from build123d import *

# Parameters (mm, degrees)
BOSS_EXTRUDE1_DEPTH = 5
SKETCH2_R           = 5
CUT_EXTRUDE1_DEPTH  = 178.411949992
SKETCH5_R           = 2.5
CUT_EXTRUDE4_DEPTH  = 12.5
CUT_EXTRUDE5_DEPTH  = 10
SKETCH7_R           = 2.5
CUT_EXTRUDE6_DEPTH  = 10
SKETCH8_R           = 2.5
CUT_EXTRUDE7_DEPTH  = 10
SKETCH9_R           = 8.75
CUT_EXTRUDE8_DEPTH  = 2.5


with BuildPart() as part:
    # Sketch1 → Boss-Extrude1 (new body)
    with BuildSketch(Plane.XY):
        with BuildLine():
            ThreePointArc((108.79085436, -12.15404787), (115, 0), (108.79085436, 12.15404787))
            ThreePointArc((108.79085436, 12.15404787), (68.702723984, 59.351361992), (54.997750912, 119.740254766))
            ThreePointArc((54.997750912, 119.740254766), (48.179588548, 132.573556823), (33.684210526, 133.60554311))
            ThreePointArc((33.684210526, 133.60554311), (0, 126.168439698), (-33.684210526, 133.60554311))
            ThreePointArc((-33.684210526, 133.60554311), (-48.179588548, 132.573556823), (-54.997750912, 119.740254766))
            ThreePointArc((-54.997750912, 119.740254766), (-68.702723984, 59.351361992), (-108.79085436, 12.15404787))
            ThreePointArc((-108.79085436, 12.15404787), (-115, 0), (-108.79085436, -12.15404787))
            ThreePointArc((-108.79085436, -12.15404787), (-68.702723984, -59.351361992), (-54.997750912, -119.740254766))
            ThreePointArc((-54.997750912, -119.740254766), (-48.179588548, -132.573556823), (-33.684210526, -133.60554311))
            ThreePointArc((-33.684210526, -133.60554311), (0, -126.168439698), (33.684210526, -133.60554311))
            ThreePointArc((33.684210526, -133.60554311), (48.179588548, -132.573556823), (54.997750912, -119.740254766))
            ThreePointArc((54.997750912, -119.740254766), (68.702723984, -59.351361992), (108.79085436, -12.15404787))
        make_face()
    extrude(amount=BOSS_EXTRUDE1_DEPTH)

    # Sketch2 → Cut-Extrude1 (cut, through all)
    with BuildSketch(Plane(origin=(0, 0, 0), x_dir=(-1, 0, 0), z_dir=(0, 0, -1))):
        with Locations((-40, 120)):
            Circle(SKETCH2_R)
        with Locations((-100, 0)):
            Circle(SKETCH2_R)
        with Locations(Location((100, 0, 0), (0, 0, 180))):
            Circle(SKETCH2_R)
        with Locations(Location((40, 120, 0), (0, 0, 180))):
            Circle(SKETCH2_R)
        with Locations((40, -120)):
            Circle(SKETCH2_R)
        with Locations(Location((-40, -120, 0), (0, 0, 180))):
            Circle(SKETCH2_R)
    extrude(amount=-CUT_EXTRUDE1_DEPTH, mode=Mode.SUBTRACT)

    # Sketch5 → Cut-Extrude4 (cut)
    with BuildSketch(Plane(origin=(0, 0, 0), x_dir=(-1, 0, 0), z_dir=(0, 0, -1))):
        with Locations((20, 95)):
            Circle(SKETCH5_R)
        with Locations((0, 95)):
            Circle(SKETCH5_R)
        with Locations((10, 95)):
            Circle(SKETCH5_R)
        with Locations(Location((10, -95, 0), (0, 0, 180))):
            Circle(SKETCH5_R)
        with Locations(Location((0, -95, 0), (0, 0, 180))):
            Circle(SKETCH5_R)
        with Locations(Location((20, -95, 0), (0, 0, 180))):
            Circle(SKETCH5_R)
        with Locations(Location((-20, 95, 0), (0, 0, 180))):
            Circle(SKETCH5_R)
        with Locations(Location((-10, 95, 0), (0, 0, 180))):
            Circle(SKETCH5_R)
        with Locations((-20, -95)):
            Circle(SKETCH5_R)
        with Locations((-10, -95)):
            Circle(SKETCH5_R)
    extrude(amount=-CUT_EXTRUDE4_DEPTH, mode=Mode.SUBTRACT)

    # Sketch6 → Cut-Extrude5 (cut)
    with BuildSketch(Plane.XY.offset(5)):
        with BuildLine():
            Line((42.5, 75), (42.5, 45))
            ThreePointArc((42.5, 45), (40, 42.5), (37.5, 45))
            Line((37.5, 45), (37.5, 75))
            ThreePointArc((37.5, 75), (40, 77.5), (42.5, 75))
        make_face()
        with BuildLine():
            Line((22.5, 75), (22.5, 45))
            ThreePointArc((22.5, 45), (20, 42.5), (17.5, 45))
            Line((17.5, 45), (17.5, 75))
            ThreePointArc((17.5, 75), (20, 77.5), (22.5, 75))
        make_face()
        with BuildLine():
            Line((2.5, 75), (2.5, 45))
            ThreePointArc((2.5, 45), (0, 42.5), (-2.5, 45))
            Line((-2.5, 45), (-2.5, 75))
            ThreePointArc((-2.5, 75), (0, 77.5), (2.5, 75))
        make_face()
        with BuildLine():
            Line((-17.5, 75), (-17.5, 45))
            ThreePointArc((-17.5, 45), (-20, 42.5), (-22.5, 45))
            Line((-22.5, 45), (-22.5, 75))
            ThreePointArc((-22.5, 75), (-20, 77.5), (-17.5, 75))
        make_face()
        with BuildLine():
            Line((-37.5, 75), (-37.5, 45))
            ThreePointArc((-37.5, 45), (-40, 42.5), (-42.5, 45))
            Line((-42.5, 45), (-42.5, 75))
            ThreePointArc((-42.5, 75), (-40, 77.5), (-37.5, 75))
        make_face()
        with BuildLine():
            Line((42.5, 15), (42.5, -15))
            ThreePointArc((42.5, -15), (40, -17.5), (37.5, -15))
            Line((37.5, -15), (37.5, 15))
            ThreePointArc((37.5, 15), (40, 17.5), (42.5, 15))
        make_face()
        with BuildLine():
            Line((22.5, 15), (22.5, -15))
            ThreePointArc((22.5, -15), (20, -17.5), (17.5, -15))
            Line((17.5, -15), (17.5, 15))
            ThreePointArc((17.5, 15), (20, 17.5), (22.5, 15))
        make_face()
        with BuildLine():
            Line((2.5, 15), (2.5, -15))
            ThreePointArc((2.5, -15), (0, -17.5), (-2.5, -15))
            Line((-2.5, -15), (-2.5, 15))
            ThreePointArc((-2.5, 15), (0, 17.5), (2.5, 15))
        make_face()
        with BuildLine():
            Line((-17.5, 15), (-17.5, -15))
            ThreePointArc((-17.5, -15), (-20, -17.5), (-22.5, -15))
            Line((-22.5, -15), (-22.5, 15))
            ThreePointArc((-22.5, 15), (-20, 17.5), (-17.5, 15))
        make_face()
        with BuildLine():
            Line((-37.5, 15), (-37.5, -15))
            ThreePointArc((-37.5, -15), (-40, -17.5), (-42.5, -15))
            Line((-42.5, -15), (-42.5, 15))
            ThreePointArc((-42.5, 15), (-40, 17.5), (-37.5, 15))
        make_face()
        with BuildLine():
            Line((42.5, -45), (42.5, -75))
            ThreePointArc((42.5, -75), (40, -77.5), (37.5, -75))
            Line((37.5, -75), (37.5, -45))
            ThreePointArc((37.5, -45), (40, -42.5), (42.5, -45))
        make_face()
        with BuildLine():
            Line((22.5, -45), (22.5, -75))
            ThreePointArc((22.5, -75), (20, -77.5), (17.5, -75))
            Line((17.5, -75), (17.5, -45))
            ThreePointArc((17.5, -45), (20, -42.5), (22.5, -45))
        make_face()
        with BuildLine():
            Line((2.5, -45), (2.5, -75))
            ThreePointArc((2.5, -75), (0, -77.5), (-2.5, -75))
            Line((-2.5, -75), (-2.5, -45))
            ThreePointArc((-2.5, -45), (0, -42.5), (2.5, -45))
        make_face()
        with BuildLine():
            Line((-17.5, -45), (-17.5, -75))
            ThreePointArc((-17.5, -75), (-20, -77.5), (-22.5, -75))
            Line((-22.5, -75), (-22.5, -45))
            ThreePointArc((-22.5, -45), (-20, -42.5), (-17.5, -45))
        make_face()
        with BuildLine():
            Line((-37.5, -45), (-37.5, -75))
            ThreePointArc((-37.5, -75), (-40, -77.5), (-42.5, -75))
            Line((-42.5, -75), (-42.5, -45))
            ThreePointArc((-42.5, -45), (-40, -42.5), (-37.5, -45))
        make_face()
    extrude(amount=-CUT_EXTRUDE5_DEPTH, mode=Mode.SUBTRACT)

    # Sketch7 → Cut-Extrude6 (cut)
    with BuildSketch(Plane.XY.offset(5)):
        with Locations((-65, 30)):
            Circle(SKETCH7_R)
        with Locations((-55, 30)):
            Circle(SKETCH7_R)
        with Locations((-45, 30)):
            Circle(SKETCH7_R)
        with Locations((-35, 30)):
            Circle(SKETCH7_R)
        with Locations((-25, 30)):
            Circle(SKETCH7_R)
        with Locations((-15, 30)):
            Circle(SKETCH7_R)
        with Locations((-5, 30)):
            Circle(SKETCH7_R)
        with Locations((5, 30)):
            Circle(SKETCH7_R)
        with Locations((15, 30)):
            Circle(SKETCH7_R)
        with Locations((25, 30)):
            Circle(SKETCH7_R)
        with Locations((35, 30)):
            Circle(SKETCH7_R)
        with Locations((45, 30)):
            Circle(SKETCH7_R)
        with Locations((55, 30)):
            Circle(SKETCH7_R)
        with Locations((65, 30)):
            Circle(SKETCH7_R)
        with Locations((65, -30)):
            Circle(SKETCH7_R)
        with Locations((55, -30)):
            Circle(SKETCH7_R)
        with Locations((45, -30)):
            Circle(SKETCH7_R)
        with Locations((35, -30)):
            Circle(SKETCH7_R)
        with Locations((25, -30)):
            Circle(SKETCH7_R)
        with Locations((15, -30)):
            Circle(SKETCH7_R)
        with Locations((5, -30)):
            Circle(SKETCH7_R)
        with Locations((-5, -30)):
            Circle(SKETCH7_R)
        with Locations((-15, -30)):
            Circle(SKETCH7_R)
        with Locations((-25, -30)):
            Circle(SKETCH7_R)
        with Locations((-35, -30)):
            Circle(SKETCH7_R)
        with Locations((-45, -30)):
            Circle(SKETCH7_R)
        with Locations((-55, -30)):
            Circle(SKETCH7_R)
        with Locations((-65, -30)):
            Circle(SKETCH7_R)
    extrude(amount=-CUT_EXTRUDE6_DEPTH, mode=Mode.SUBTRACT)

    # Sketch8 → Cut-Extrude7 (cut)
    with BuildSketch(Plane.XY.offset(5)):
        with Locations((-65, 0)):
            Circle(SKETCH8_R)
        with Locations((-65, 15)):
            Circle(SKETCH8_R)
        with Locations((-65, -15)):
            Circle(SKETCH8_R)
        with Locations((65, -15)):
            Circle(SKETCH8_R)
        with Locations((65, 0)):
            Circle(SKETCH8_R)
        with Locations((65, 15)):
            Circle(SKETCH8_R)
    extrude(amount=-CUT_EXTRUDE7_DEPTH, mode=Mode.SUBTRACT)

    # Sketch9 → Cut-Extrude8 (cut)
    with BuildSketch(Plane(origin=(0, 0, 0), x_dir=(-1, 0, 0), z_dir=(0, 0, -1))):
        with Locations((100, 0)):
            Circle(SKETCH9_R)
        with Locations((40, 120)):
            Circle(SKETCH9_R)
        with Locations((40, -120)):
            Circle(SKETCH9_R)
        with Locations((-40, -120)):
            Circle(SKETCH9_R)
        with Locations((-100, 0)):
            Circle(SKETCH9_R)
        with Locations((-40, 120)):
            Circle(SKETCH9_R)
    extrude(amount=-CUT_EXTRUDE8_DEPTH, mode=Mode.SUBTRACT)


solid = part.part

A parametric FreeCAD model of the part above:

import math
import FreeCAD as App
import Part
import Sketcher

doc = App.newDocument("Part")
params = doc.addObject("Spreadsheet::Sheet", "Params")
for row, (alias, value) in enumerate([
    ("sketch1_radius", "15 mm"),
    ("sketch1_radius2", "130 mm"),
    ("sketch1_radius3", "80 mm"),
    ("pad1_length", "5 mm"),
    ("sketch2_diameter", "10 mm"),
    ("sketch3_diameter", "5 mm"),
    ("pocket2_length", "12.5 mm"),
    ("sketch4_radius", "2.5 mm"),
    ("sketch4_height", "30 mm"),
    ("pocket3_length", "10 mm"),
    ("sketch5_diameter", "5 mm"),
    ("pocket4_length", "10 mm"),
    ("sketch6_diameter", "5 mm"),
    ("pocket5_length", "10 mm"),
    ("sketch7_diameter", "17.5 mm"),
    ("pocket6_length", "2.5 mm"),
], start=1):
    params.set(f"A{row}", alias)
    params.set(f"B{row}", "=" + value)
    params.setAlias(f"B{row}", alias)

body = doc.addObject("PartDesign::Body", "Body")

sketch1 = doc.addObject("Sketcher::SketchObject", "Sketch")
body.addObject(sketch1)
sketch1.AttachmentSupport = (doc.XY_Plane, [""])
sketch1.MapMode = "FlatFace"
sketch1.addGeometry([
    Part.ArcOfCircle(Part.Circle(App.Vector(100, 0, 0), App.Vector(0, 0, 1), 15), math.radians(-54), math.radians(54)),
    Part.ArcOfCircle(Part.Circle(App.Vector(185, 117, 0), App.Vector(0, 0, 1), 130), math.radians(179), math.radians(234)),
    Part.ArcOfCircle(Part.Circle(App.Vector(40, 120, 0), App.Vector(0, 0, 1), 15), math.radians(-1), math.radians(115)),
    Part.ArcOfCircle(Part.Circle(App.Vector(0, 206, 0), App.Vector(0, 0, 1), 80), math.radians(-115), math.radians(-65)),
    Part.ArcOfCircle(Part.Circle(App.Vector(-40, 120, 0), App.Vector(0, 0, 1), 15), math.radians(65), math.radians(181)),
    Part.ArcOfCircle(Part.Circle(App.Vector(-185, 117, 0), App.Vector(0, 0, 1), 130), math.radians(-54), math.radians(1)),
    Part.ArcOfCircle(Part.Circle(App.Vector(-100, 0, 0), App.Vector(0, 0, 1), 15), math.radians(126), math.radians(234)),
    Part.ArcOfCircle(Part.Circle(App.Vector(-185, -117, 0), App.Vector(0, 0, 1), 130), math.radians(-1), math.radians(54)),
    Part.ArcOfCircle(Part.Circle(App.Vector(-40, -120, 0), App.Vector(0, 0, 1), 15), math.radians(179), math.radians(295)),
    Part.ArcOfCircle(Part.Circle(App.Vector(0, -206, 0), App.Vector(0, 0, 1), 80), math.radians(65), math.radians(115)),
    Part.ArcOfCircle(Part.Circle(App.Vector(40, -120, 0), App.Vector(0, 0, 1), 15), math.radians(-115), math.radians(1)),
    Part.ArcOfCircle(Part.Circle(App.Vector(185, -117, 0), App.Vector(0, 0, 1), 130), math.radians(126), math.radians(181)),
], False)
sketch1.addConstraint([
    Sketcher.Constraint("Tangent", 0, 2, 1, 2),
    Sketcher.Constraint("Tangent", 1, 1, 2, 1),
    Sketcher.Constraint("Tangent", 2, 2, 3, 2),
    Sketcher.Constraint("Tangent", 3, 1, 4, 1),
    Sketcher.Constraint("Tangent", 4, 2, 5, 2),
    Sketcher.Constraint("Tangent", 5, 1, 6, 1),
    Sketcher.Constraint("Tangent", 6, 2, 7, 2),
    Sketcher.Constraint("Tangent", 7, 1, 8, 1),
    Sketcher.Constraint("Tangent", 8, 2, 9, 2),
    Sketcher.Constraint("Tangent", 9, 1, 10, 1),
    Sketcher.Constraint("Tangent", 10, 2, 11, 2),
    Sketcher.Constraint("Tangent", 11, 1, 0, 1),
    Sketcher.Constraint("Equal", 0, 2),
    Sketcher.Constraint("Equal", 2, 4),
    Sketcher.Constraint("Equal", 1, 5),
    Sketcher.Constraint("Equal", 4, 6),
    Sketcher.Constraint("Equal", 5, 7),
    Sketcher.Constraint("Equal", 6, 8),
    Sketcher.Constraint("Equal", 3, 9),
    Sketcher.Constraint("Equal", 8, 10),
    Sketcher.Constraint("Equal", 7, 11),
    Sketcher.Constraint("Symmetric", 0, 3, 6, 3, -1, 1),
    Sketcher.Constraint("Symmetric", 2, 3, 8, 3, -1, 1),
    Sketcher.Constraint("Symmetric", 4, 3, 10, 3, -1, 1),
    Sketcher.Constraint("Symmetric", 2, 3, 4, 3, -2),
    Sketcher.Constraint("PointOnObject", 0, 3, -1),
    Sketcher.Constraint("Radius", 0, 15.0),
    Sketcher.Constraint("Radius", 1, 130.0),
    Sketcher.Constraint("Radius", 3, 80.0),
    Sketcher.Constraint("DistanceX", -1, 1, 0, 3, 100.0),
    Sketcher.Constraint("DistanceX", -1, 1, 2, 3, 40.0),
    Sketcher.Constraint("DistanceY", -1, 1, 2, 3, 120.0),
])
sketch1.setExpression("Constraints[26]", "Params.sketch1_radius")
sketch1.setExpression("Constraints[27]", "Params.sketch1_radius2")
sketch1.setExpression("Constraints[28]", "Params.sketch1_radius3")
pad1 = doc.addObject("PartDesign::Pad", "Pad")
body.addObject(pad1)
pad1.Profile = sketch1
pad1.setExpression("Length", "Params.pad1_length")

sketch2 = doc.addObject("Sketcher::SketchObject", "Sketch001")
body.addObject(sketch2)
sketch2.AttachmentSupport = (doc.XY_Plane, [""])
sketch2.MapMode = "FlatFace"
sketch2.addGeometry([
    Part.Circle(App.Vector(40, 120, 0), App.Vector(0, 0, 1), 5),
    Part.Circle(App.Vector(100, 0, 0), App.Vector(0, 0, 1), 5),
    Part.Circle(App.Vector(-100, 0, 0), App.Vector(0, 0, 1), 5),
    Part.Circle(App.Vector(-40, 120, 0), App.Vector(0, 0, 1), 5),
    Part.Circle(App.Vector(-40, -120, 0), App.Vector(0, 0, 1), 5),
    Part.Circle(App.Vector(40, -120, 0), App.Vector(0, 0, 1), 5),
], False)
sketch2.addConstraint([
    Sketcher.Constraint("Equal", 0, 1),
    Sketcher.Constraint("Equal", 1, 2),
    Sketcher.Constraint("Equal", 2, 3),
    Sketcher.Constraint("Equal", 3, 4),
    Sketcher.Constraint("Equal", 4, 5),
    Sketcher.Constraint("Symmetric", 1, 3, 2, 3, -1, 1),
    Sketcher.Constraint("Symmetric", 0, 3, 4, 3, -1, 1),
    Sketcher.Constraint("Symmetric", 3, 3, 5, 3, -1, 1),
    Sketcher.Constraint("Symmetric", 0, 3, 3, 3, -2),
    Sketcher.Constraint("PointOnObject", 1, 3, -1),
    Sketcher.Constraint("Diameter", 0, 10.0),
    Sketcher.Constraint("DistanceX", -1, 1, 0, 3, 40.0),
    Sketcher.Constraint("DistanceY", -1, 1, 0, 3, 120.0),
    Sketcher.Constraint("DistanceX", -1, 1, 1, 3, 100.0),
])
sketch2.setExpression("Constraints[10]", "Params.sketch2_diameter")
pocket1 = doc.addObject("PartDesign::Pocket", "Pocket")
body.addObject(pocket1)
pocket1.Profile = sketch2
pocket1.Type = "ThroughAll"
pocket1.Reversed = True

sketch3 = doc.addObject("Sketcher::SketchObject", "Sketch002")
body.addObject(sketch3)
sketch3.AttachmentSupport = (doc.XY_Plane, [""])
sketch3.MapMode = "FlatFace"
sketch3.addGeometry([
    Part.Circle(App.Vector(-20, 95, 0), App.Vector(0, 0, 1), 2.5),
    Part.Circle(App.Vector(0, 95, 0), App.Vector(0, 0, 1), 2.5),
    Part.Circle(App.Vector(-10, 95, 0), App.Vector(0, 0, 1), 2.5),
    Part.Circle(App.Vector(-10, -95, 0), App.Vector(0, 0, 1), 2.5),
    Part.Circle(App.Vector(0, -95, 0), App.Vector(0, 0, 1), 2.5),
    Part.Circle(App.Vector(-20, -95, 0), App.Vector(0, 0, 1), 2.5),
    Part.Circle(App.Vector(20, 95, 0), App.Vector(0, 0, 1), 2.5),
    Part.Circle(App.Vector(10, 95, 0), App.Vector(0, 0, 1), 2.5),
    Part.Circle(App.Vector(20, -95, 0), App.Vector(0, 0, 1), 2.5),
    Part.Circle(App.Vector(10, -95, 0), App.Vector(0, 0, 1), 2.5),
], False)
sketch3.addConstraint([
    Sketcher.Constraint("Equal", 0, 1),
    Sketcher.Constraint("Equal", 1, 2),
    Sketcher.Constraint("Equal", 2, 3),
    Sketcher.Constraint("Equal", 3, 4),
    Sketcher.Constraint("Equal", 4, 5),
    Sketcher.Constraint("Equal", 5, 6),
    Sketcher.Constraint("Equal", 6, 7),
    Sketcher.Constraint("Equal", 7, 8),
    Sketcher.Constraint("Equal", 8, 9),
    Sketcher.Constraint("Symmetric", 1, 3, 4, 3, -1, 1),
    Sketcher.Constraint("Symmetric", 5, 3, 6, 3, -1, 1),
    Sketcher.Constraint("Symmetric", 3, 3, 7, 3, -1, 1),
    Sketcher.Constraint("Symmetric", 0, 3, 8, 3, -1, 1),
    Sketcher.Constraint("Symmetric", 2, 3, 9, 3, -1, 1),
    Sketcher.Constraint("Symmetric", 0, 3, 6, 3, -2),
    Sketcher.Constraint("Symmetric", 2, 3, 7, 3, -2),
    Sketcher.Constraint("PointOnObject", 1, 3, -2),
    Sketcher.Constraint("Horizontal", 0, 3, 1, 3),
    Sketcher.Constraint("Horizontal", 1, 3, 2, 3),
    Sketcher.Constraint("Diameter", 0, 5.0),
    Sketcher.Constraint("DistanceX", 0, 3, -1, 1, 20.0),
    Sketcher.Constraint("DistanceY", -1, 1, 0, 3, 95.0),
    Sketcher.Constraint("DistanceX", 2, 3, -1, 1, 10.0),
])
sketch3.setExpression("Constraints[19]", "Params.sketch3_diameter")
pocket2 = doc.addObject("PartDesign::Pocket", "Pocket001")
body.addObject(pocket2)
pocket2.Profile = sketch3
pocket2.setExpression("Length", "Params.pocket2_length")
pocket2.Reversed = True

sketch4 = doc.addObject("Sketcher::SketchObject", "Sketch003")
body.addObject(sketch4)
sketch4.AttachmentSupport = (doc.XY_Plane, [""])
sketch4.MapMode = "FlatFace"
sketch4.AttachmentOffset = App.Placement(App.Vector(0, 0, 5), App.Rotation())
sketch4.addGeometry([
    Part.LineSegment(App.Vector(42.5, 45, 0), App.Vector(42.5, 75, 0)),
    Part.ArcOfCircle(Part.Circle(App.Vector(40, 75, 0), App.Vector(0, 0, 1), 2.5), math.radians(0), math.radians(180)),
    Part.LineSegment(App.Vector(37.5, 75, 0), App.Vector(37.5, 45, 0)),
    Part.ArcOfCircle(Part.Circle(App.Vector(40, 45, 0), App.Vector(0, 0, 1), 2.5), math.radians(180), math.radians(360)),
    Part.LineSegment(App.Vector(22.5, 45, 0), App.Vector(22.5, 75, 0)),
    Part.ArcOfCircle(Part.Circle(App.Vector(20, 75, 0), App.Vector(0, 0, 1), 2.5), math.radians(0), math.radians(180)),
    Part.LineSegment(App.Vector(17.5, 75, 0), App.Vector(17.5, 45, 0)),
    Part.ArcOfCircle(Part.Circle(App.Vector(20, 45, 0), App.Vector(0, 0, 1), 2.5), math.radians(180), math.radians(360)),
    Part.LineSegment(App.Vector(2.5, 45, 0), App.Vector(2.5, 75, 0)),
    Part.ArcOfCircle(Part.Circle(App.Vector(0, 75, 0), App.Vector(0, 0, 1), 2.5), math.radians(0), math.radians(180)),
    Part.LineSegment(App.Vector(-2.5, 75, 0), App.Vector(-2.5, 45, 0)),
    Part.ArcOfCircle(Part.Circle(App.Vector(0, 45, 0), App.Vector(0, 0, 1), 2.5), math.radians(180), math.radians(360)),
    Part.LineSegment(App.Vector(-17.5, 45, 0), App.Vector(-17.5, 75, 0)),
    Part.ArcOfCircle(Part.Circle(App.Vector(-20, 75, 0), App.Vector(0, 0, 1), 2.5), math.radians(0), math.radians(180)),
    Part.LineSegment(App.Vector(-22.5, 75, 0), App.Vector(-22.5, 45, 0)),
    Part.ArcOfCircle(Part.Circle(App.Vector(-20, 45, 0), App.Vector(0, 0, 1), 2.5), math.radians(180), math.radians(360)),
    Part.LineSegment(App.Vector(-37.5, 45, 0), App.Vector(-37.5, 75, 0)),
    Part.ArcOfCircle(Part.Circle(App.Vector(-40, 75, 0), App.Vector(0, 0, 1), 2.5), math.radians(0), math.radians(180)),
    Part.LineSegment(App.Vector(-42.5, 75, 0), App.Vector(-42.5, 45, 0)),
    Part.ArcOfCircle(Part.Circle(App.Vector(-40, 45, 0), App.Vector(0, 0, 1), 2.5), math.radians(180), math.radians(360)),
    Part.LineSegment(App.Vector(42.5, -15, 0), App.Vector(42.5, 15, 0)),
    Part.ArcOfCircle(Part.Circle(App.Vector(40, 15, 0), App.Vector(0, 0, 1), 2.5), math.radians(0), math.radians(180)),
    Part.LineSegment(App.Vector(37.5, 15, 0), App.Vector(37.5, -15, 0)),
    Part.ArcOfCircle(Part.Circle(App.Vector(40, -15, 0), App.Vector(0, 0, 1), 2.5), math.radians(180), math.radians(360)),
    Part.LineSegment(App.Vector(22.5, -15, 0), App.Vector(22.5, 15, 0)),
    Part.ArcOfCircle(Part.Circle(App.Vector(20, 15, 0), App.Vector(0, 0, 1), 2.5), math.radians(0), math.radians(180)),
    Part.LineSegment(App.Vector(17.5, 15, 0), App.Vector(17.5, -15, 0)),
    Part.ArcOfCircle(Part.Circle(App.Vector(20, -15, 0), App.Vector(0, 0, 1), 2.5), math.radians(180), math.radians(360)),
    Part.LineSegment(App.Vector(2.5, -15, 0), App.Vector(2.5, 15, 0)),
    Part.ArcOfCircle(Part.Circle(App.Vector(0, 15, 0), App.Vector(0, 0, 1), 2.5), math.radians(0), math.radians(180)),
    Part.LineSegment(App.Vector(-2.5, 15, 0), App.Vector(-2.5, -15, 0)),
    Part.ArcOfCircle(Part.Circle(App.Vector(0, -15, 0), App.Vector(0, 0, 1), 2.5), math.radians(180), math.radians(360)),
    Part.LineSegment(App.Vector(-17.5, -15, 0), App.Vector(-17.5, 15, 0)),
    Part.ArcOfCircle(Part.Circle(App.Vector(-20, 15, 0), App.Vector(0, 0, 1), 2.5), math.radians(0), math.radians(180)),
    Part.LineSegment(App.Vector(-22.5, 15, 0), App.Vector(-22.5, -15, 0)),
    Part.ArcOfCircle(Part.Circle(App.Vector(-20, -15, 0), App.Vector(0, 0, 1), 2.5), math.radians(180), math.radians(360)),
    Part.LineSegment(App.Vector(-37.5, -15, 0), App.Vector(-37.5, 15, 0)),
    Part.ArcOfCircle(Part.Circle(App.Vector(-40, 15, 0), App.Vector(0, 0, 1), 2.5), math.radians(0), math.radians(180)),
    Part.LineSegment(App.Vector(-42.5, 15, 0), App.Vector(-42.5, -15, 0)),
    Part.ArcOfCircle(Part.Circle(App.Vector(-40, -15, 0), App.Vector(0, 0, 1), 2.5), math.radians(180), math.radians(360)),
    Part.LineSegment(App.Vector(42.5, -75, 0), App.Vector(42.5, -45, 0)),
    Part.ArcOfCircle(Part.Circle(App.Vector(40, -45, 0), App.Vector(0, 0, 1), 2.5), math.radians(0), math.radians(180)),
    Part.LineSegment(App.Vector(37.5, -45, 0), App.Vector(37.5, -75, 0)),
    Part.ArcOfCircle(Part.Circle(App.Vector(40, -75, 0), App.Vector(0, 0, 1), 2.5), math.radians(180), math.radians(360)),
    Part.LineSegment(App.Vector(22.5, -75, 0), App.Vector(22.5, -45, 0)),
    Part.ArcOfCircle(Part.Circle(App.Vector(20, -45, 0), App.Vector(0, 0, 1), 2.5), math.radians(0), math.radians(180)),
    Part.LineSegment(App.Vector(17.5, -45, 0), App.Vector(17.5, -75, 0)),
    Part.ArcOfCircle(Part.Circle(App.Vector(20, -75, 0), App.Vector(0, 0, 1), 2.5), math.radians(180), math.radians(360)),
    Part.LineSegment(App.Vector(2.5, -75, 0), App.Vector(2.5, -45, 0)),
    Part.ArcOfCircle(Part.Circle(App.Vector(0, -45, 0), App.Vector(0, 0, 1), 2.5), math.radians(0), math.radians(180)),
    Part.LineSegment(App.Vector(-2.5, -45, 0), App.Vector(-2.5, -75, 0)),
    Part.ArcOfCircle(Part.Circle(App.Vector(0, -75, 0), App.Vector(0, 0, 1), 2.5), math.radians(180), math.radians(360)),
    Part.LineSegment(App.Vector(-17.5, -75, 0), App.Vector(-17.5, -45, 0)),
    Part.ArcOfCircle(Part.Circle(App.Vector(-20, -45, 0), App.Vector(0, 0, 1), 2.5), math.radians(0), math.radians(180)),
    Part.LineSegment(App.Vector(-22.5, -45, 0), App.Vector(-22.5, -75, 0)),
    Part.ArcOfCircle(Part.Circle(App.Vector(-20, -75, 0), App.Vector(0, 0, 1), 2.5), math.radians(180), math.radians(360)),
    Part.LineSegment(App.Vector(-37.5, -75, 0), App.Vector(-37.5, -45, 0)),
    Part.ArcOfCircle(Part.Circle(App.Vector(-40, -45, 0), App.Vector(0, 0, 1), 2.5), math.radians(0), math.radians(180)),
    Part.LineSegment(App.Vector(-42.5, -45, 0), App.Vector(-42.5, -75, 0)),
    Part.ArcOfCircle(Part.Circle(App.Vector(-40, -75, 0), App.Vector(0, 0, 1), 2.5), math.radians(180), math.radians(360)),
], False)
sketch4.addConstraint([
    Sketcher.Constraint("Tangent", 0, 2, 1, 1),
    Sketcher.Constraint("Tangent", 1, 2, 2, 1),
    Sketcher.Constraint("Tangent", 2, 2, 3, 1),
    Sketcher.Constraint("Tangent", 3, 2, 0, 1),
    Sketcher.Constraint("Tangent", 4, 2, 5, 1),
    Sketcher.Constraint("Tangent", 5, 2, 6, 1),
    Sketcher.Constraint("Tangent", 6, 2, 7, 1),
    Sketcher.Constraint("Tangent", 7, 2, 4, 1),
    Sketcher.Constraint("Tangent", 8, 2, 9, 1),
    Sketcher.Constraint("Tangent", 9, 2, 10, 1),
    Sketcher.Constraint("Tangent", 10, 2, 11, 1),
    Sketcher.Constraint("Tangent", 11, 2, 8, 1),
    Sketcher.Constraint("Tangent", 12, 2, 13, 1),
    Sketcher.Constraint("Tangent", 13, 2, 14, 1),
    Sketcher.Constraint("Tangent", 14, 2, 15, 1),
    Sketcher.Constraint("Tangent", 15, 2, 12, 1),
    Sketcher.Constraint("Tangent", 16, 2, 17, 1),
    Sketcher.Constraint("Tangent", 17, 2, 18, 1),
    Sketcher.Constraint("Tangent", 18, 2, 19, 1),
    Sketcher.Constraint("Tangent", 19, 2, 16, 1),
    Sketcher.Constraint("Tangent", 20, 2, 21, 1),
    Sketcher.Constraint("Tangent", 21, 2, 22, 1),
    Sketcher.Constraint("Tangent", 22, 2, 23, 1),
    Sketcher.Constraint("Tangent", 23, 2, 20, 1),
    Sketcher.Constraint("Tangent", 24, 2, 25, 1),
    Sketcher.Constraint("Tangent", 25, 2, 26, 1),
    Sketcher.Constraint("Tangent", 26, 2, 27, 1),
    Sketcher.Constraint("Tangent", 27, 2, 24, 1),
    Sketcher.Constraint("Tangent", 28, 2, 29, 1),
    Sketcher.Constraint("Tangent", 29, 2, 30, 1),
    Sketcher.Constraint("Tangent", 30, 2, 31, 1),
    Sketcher.Constraint("Tangent", 31, 2, 28, 1),
    Sketcher.Constraint("Tangent", 32, 2, 33, 1),
    Sketcher.Constraint("Tangent", 33, 2, 34, 1),
    Sketcher.Constraint("Tangent", 34, 2, 35, 1),
    Sketcher.Constraint("Tangent", 35, 2, 32, 1),
    Sketcher.Constraint("Tangent", 36, 2, 37, 1),
    Sketcher.Constraint("Tangent", 37, 2, 38, 1),
    Sketcher.Constraint("Tangent", 38, 2, 39, 1),
    Sketcher.Constraint("Tangent", 39, 2, 36, 1),
    Sketcher.Constraint("Tangent", 40, 2, 41, 1),
    Sketcher.Constraint("Tangent", 41, 2, 42, 1),
    Sketcher.Constraint("Tangent", 42, 2, 43, 1),
    Sketcher.Constraint("Tangent", 43, 2, 40, 1),
    Sketcher.Constraint("Tangent", 44, 2, 45, 1),
    Sketcher.Constraint("Tangent", 45, 2, 46, 1),
    Sketcher.Constraint("Tangent", 46, 2, 47, 1),
    Sketcher.Constraint("Tangent", 47, 2, 44, 1),
    Sketcher.Constraint("Tangent", 48, 2, 49, 1),
    Sketcher.Constraint("Tangent", 49, 2, 50, 1),
    Sketcher.Constraint("Tangent", 50, 2, 51, 1),
    Sketcher.Constraint("Tangent", 51, 2, 48, 1),
    Sketcher.Constraint("Tangent", 52, 2, 53, 1),
    Sketcher.Constraint("Tangent", 53, 2, 54, 1),
    Sketcher.Constraint("Tangent", 54, 2, 55, 1),
    Sketcher.Constraint("Tangent", 55, 2, 52, 1),
    Sketcher.Constraint("Tangent", 56, 2, 57, 1),
    Sketcher.Constraint("Tangent", 57, 2, 58, 1),
    Sketcher.Constraint("Tangent", 58, 2, 59, 1),
    Sketcher.Constraint("Tangent", 59, 2, 56, 1),
    Sketcher.Constraint("Vertical", 0),
    Sketcher.Constraint("Vertical", 2),
    Sketcher.Constraint("Vertical", 4),
    Sketcher.Constraint("Vertical", 6),
    Sketcher.Constraint("Vertical", 8),
    Sketcher.Constraint("Vertical", 10),
    Sketcher.Constraint("Vertical", 12),
    Sketcher.Constraint("Vertical", 14),
    Sketcher.Constraint("Vertical", 16),
    Sketcher.Constraint("Vertical", 18),
    Sketcher.Constraint("Vertical", 20),
    Sketcher.Constraint("Vertical", 22),
    Sketcher.Constraint("Vertical", 24),
    Sketcher.Constraint("Vertical", 26),
    Sketcher.Constraint("Vertical", 28),
    Sketcher.Constraint("Vertical", 30),
    Sketcher.Constraint("Vertical", 32),
    Sketcher.Constraint("Vertical", 34),
    Sketcher.Constraint("Vertical", 36),
    Sketcher.Constraint("Vertical", 38),
    Sketcher.Constraint("Vertical", 40),
    Sketcher.Constraint("Vertical", 42),
    Sketcher.Constraint("Vertical", 44),
    Sketcher.Constraint("Vertical", 46),
    Sketcher.Constraint("Vertical", 48),
    Sketcher.Constraint("Vertical", 50),
    Sketcher.Constraint("Vertical", 52),
    Sketcher.Constraint("Vertical", 54),
    Sketcher.Constraint("Vertical", 56),
    Sketcher.Constraint("Vertical", 58),
    Sketcher.Constraint("Equal", 3, 5),
    Sketcher.Constraint("Equal", 7, 9),
    Sketcher.Constraint("Equal", 11, 13),
    Sketcher.Constraint("Equal", 15, 17),
    Sketcher.Constraint("Equal", 19, 21),
    Sketcher.Constraint("Equal", 23, 25),
    Sketcher.Constraint("Equal", 27, 29),
    Sketcher.Constraint("Equal", 31, 33),
    Sketcher.Constraint("Equal", 35, 37),
    Sketcher.Constraint("Equal", 39, 41),
    Sketcher.Constraint("Equal", 43, 45),
    Sketcher.Constraint("Equal", 47, 49),
    Sketcher.Constraint("Equal", 51, 53),
    Sketcher.Constraint("Equal", 55, 57),
    Sketcher.Constraint("Symmetric", 29, 3, 31, 3, -1, 1),
    Sketcher.Constraint("Symmetric", 27, 3, 33, 3, -1, 1),
    Sketcher.Constraint("Symmetric", 23, 3, 37, 3, -1, 1),
    Sketcher.Constraint("Symmetric", 19, 3, 41, 3, -1, 1),
    Sketcher.Constraint("Symmetric", 15, 3, 45, 3, -1, 1),
    Sketcher.Constraint("Symmetric", 11, 3, 49, 3, -1, 1),
    Sketcher.Constraint("Symmetric", 7, 3, 53, 3, -1, 1),
    Sketcher.Constraint("Symmetric", 3, 3, 57, 3, -1, 1),
    Sketcher.Constraint("Symmetric", 5, 3, 13, 3, -2),
    Sketcher.Constraint("Symmetric", 1, 3, 17, 3, -2),
    Sketcher.Constraint("Symmetric", 9, 3, 51, 3, -1),
    Sketcher.Constraint("Horizontal", 1, 3, 5, 3),
    Sketcher.Constraint("Horizontal", 3, 3, 7, 3),
    Sketcher.Constraint("Horizontal", 5, 3, 9, 3),
    Sketcher.Constraint("Horizontal", 7, 3, 11, 3),
    Sketcher.Constraint("Horizontal", 11, 3, 15, 3),
    Sketcher.Constraint("Horizontal", 15, 3, 19, 3),
    Sketcher.Constraint("Horizontal", 21, 3, 25, 3),
    Sketcher.Constraint("Horizontal", 23, 3, 27, 3),
    Sketcher.Constraint("Horizontal", 25, 3, 29, 3),
    Sketcher.Constraint("Horizontal", 27, 3, 31, 3),
    Sketcher.Constraint("Horizontal", 31, 3, 35, 3),
    Sketcher.Constraint("Horizontal", 35, 3, 39, 3),
    Sketcher.Constraint("Horizontal", 43, 3, 47, 3),
    Sketcher.Constraint("Horizontal", 47, 3, 51, 3),
    Sketcher.Constraint("Horizontal", 51, 3, 55, 3),
    Sketcher.Constraint("Horizontal", 55, 3, 59, 3),
    Sketcher.Constraint("Vertical", 3, 3, 21, 3),
    Sketcher.Constraint("Vertical", 7, 3, 25, 3),
    Sketcher.Constraint("Equal", 18, 20),
    Sketcher.Constraint("Radius", 1, 2.5),
    Sketcher.Constraint("DistanceY", 0, 1, 0, 2, 30.0),
    Sketcher.Constraint("DistanceX", -1, 1, 1, 3, 40.0),
    Sketcher.Constraint("DistanceY", -1, 1, 1, 3, 75.0),
    Sketcher.Constraint("DistanceX", -1, 1, 5, 3, 20.0),
])
sketch4.setExpression("Constraints[134]", "Params.sketch4_radius")
sketch4.setExpression("Constraints[135]", "Params.sketch4_height")
pocket3 = doc.addObject("PartDesign::Pocket", "Pocket002")
body.addObject(pocket3)
pocket3.Profile = sketch4
pocket3.setExpression("Length", "Params.pocket3_length")

sketch5 = doc.addObject("Sketcher::SketchObject", "Sketch004")
body.addObject(sketch5)
sketch5.AttachmentSupport = (doc.XY_Plane, [""])
sketch5.MapMode = "FlatFace"
sketch5.AttachmentOffset = App.Placement(App.Vector(0, 0, 5), App.Rotation())
sketch5.addGeometry([
    Part.Circle(App.Vector(-65, 30, 0), App.Vector(0, 0, 1), 2.5),
    Part.Circle(App.Vector(-55, 30, 0), App.Vector(0, 0, 1), 2.5),
    Part.Circle(App.Vector(-45, 30, 0), App.Vector(0, 0, 1), 2.5),
    Part.Circle(App.Vector(-35, 30, 0), App.Vector(0, 0, 1), 2.5),
    Part.Circle(App.Vector(-25, 30, 0), App.Vector(0, 0, 1), 2.5),
    Part.Circle(App.Vector(-15, 30, 0), App.Vector(0, 0, 1), 2.5),
    Part.Circle(App.Vector(-5, 30, 0), App.Vector(0, 0, 1), 2.5),
    Part.Circle(App.Vector(5, 30, 0), App.Vector(0, 0, 1), 2.5),
    Part.Circle(App.Vector(15, 30, 0), App.Vector(0, 0, 1), 2.5),
    Part.Circle(App.Vector(25, 30, 0), App.Vector(0, 0, 1), 2.5),
    Part.Circle(App.Vector(35, 30, 0), App.Vector(0, 0, 1), 2.5),
    Part.Circle(App.Vector(45, 30, 0), App.Vector(0, 0, 1), 2.5),
    Part.Circle(App.Vector(55, 30, 0), App.Vector(0, 0, 1), 2.5),
    Part.Circle(App.Vector(65, 30, 0), App.Vector(0, 0, 1), 2.5),
    Part.Circle(App.Vector(65, -30, 0), App.Vector(0, 0, 1), 2.5),
    Part.Circle(App.Vector(55, -30, 0), App.Vector(0, 0, 1), 2.5),
    Part.Circle(App.Vector(45, -30, 0), App.Vector(0, 0, 1), 2.5),
    Part.Circle(App.Vector(35, -30, 0), App.Vector(0, 0, 1), 2.5),
    Part.Circle(App.Vector(25, -30, 0), App.Vector(0, 0, 1), 2.5),
    Part.Circle(App.Vector(15, -30, 0), App.Vector(0, 0, 1), 2.5),
    Part.Circle(App.Vector(5, -30, 0), App.Vector(0, 0, 1), 2.5),
    Part.Circle(App.Vector(-5, -30, 0), App.Vector(0, 0, 1), 2.5),
    Part.Circle(App.Vector(-15, -30, 0), App.Vector(0, 0, 1), 2.5),
    Part.Circle(App.Vector(-25, -30, 0), App.Vector(0, 0, 1), 2.5),
    Part.Circle(App.Vector(-35, -30, 0), App.Vector(0, 0, 1), 2.5),
    Part.Circle(App.Vector(-45, -30, 0), App.Vector(0, 0, 1), 2.5),
    Part.Circle(App.Vector(-55, -30, 0), App.Vector(0, 0, 1), 2.5),
    Part.Circle(App.Vector(-65, -30, 0), App.Vector(0, 0, 1), 2.5),
], False)
sketch5.addConstraint([
    Sketcher.Constraint("Equal", 0, 1),
    Sketcher.Constraint("Equal", 1, 2),
    Sketcher.Constraint("Equal", 2, 3),
    Sketcher.Constraint("Equal", 3, 4),
    Sketcher.Constraint("Equal", 4, 5),
    Sketcher.Constraint("Equal", 5, 6),
    Sketcher.Constraint("Equal", 6, 7),
    Sketcher.Constraint("Equal", 7, 8),
    Sketcher.Constraint("Equal", 8, 9),
    Sketcher.Constraint("Equal", 9, 10),
    Sketcher.Constraint("Equal", 10, 11),
    Sketcher.Constraint("Equal", 11, 12),
    Sketcher.Constraint("Equal", 12, 13),
    Sketcher.Constraint("Equal", 13, 14),
    Sketcher.Constraint("Equal", 14, 15),
    Sketcher.Constraint("Equal", 15, 16),
    Sketcher.Constraint("Equal", 16, 17),
    Sketcher.Constraint("Equal", 17, 18),
    Sketcher.Constraint("Equal", 18, 19),
    Sketcher.Constraint("Equal", 19, 20),
    Sketcher.Constraint("Equal", 20, 21),
    Sketcher.Constraint("Equal", 21, 22),
    Sketcher.Constraint("Equal", 22, 23),
    Sketcher.Constraint("Equal", 23, 24),
    Sketcher.Constraint("Equal", 24, 25),
    Sketcher.Constraint("Equal", 25, 26),
    Sketcher.Constraint("Equal", 26, 27),
    Sketcher.Constraint("Symmetric", 0, 3, 14, 3, -1, 1),
    Sketcher.Constraint("Symmetric", 1, 3, 15, 3, -1, 1),
    Sketcher.Constraint("Symmetric", 2, 3, 16, 3, -1, 1),
    Sketcher.Constraint("Symmetric", 3, 3, 17, 3, -1, 1),
    Sketcher.Constraint("Symmetric", 4, 3, 18, 3, -1, 1),
    Sketcher.Constraint("Symmetric", 5, 3, 19, 3, -1, 1),
    Sketcher.Constraint("Symmetric", 6, 3, 20, 3, -1, 1),
    Sketcher.Constraint("Symmetric", 7, 3, 21, 3, -1, 1),
    Sketcher.Constraint("Symmetric", 8, 3, 22, 3, -1, 1),
    Sketcher.Constraint("Symmetric", 9, 3, 23, 3, -1, 1),
    Sketcher.Constraint("Symmetric", 10, 3, 24, 3, -1, 1),
    Sketcher.Constraint("Symmetric", 11, 3, 25, 3, -1, 1),
    Sketcher.Constraint("Symmetric", 12, 3, 26, 3, -1, 1),
    Sketcher.Constraint("Symmetric", 13, 3, 27, 3, -1, 1),
    Sketcher.Constraint("Symmetric", 6, 3, 7, 3, -2),
    Sketcher.Constraint("Symmetric", 5, 3, 8, 3, -2),
    Sketcher.Constraint("Symmetric", 4, 3, 9, 3, -2),
    Sketcher.Constraint("Symmetric", 3, 3, 10, 3, -2),
    Sketcher.Constraint("Symmetric", 2, 3, 11, 3, -2),
    Sketcher.Constraint("Symmetric", 1, 3, 12, 3, -2),
    Sketcher.Constraint("Symmetric", 0, 3, 13, 3, -2),
    Sketcher.Constraint("Horizontal", 0, 3, 1, 3),
    Sketcher.Constraint("Horizontal", 1, 3, 2, 3),
    Sketcher.Constraint("Horizontal", 2, 3, 3, 3),
    Sketcher.Constraint("Horizontal", 3, 3, 4, 3),
    Sketcher.Constraint("Horizontal", 4, 3, 5, 3),
    Sketcher.Constraint("Horizontal", 5, 3, 6, 3),
    Sketcher.Constraint("Diameter", 0, 5.0),
    Sketcher.Constraint("DistanceX", 0, 3, -1, 1, 65.0),
    Sketcher.Constraint("DistanceY", -1, 1, 0, 3, 30.0),
    Sketcher.Constraint("DistanceX", 1, 3, -1, 1, 55.0),
    Sketcher.Constraint("DistanceX", 2, 3, -1, 1, 45.0),
    Sketcher.Constraint("DistanceX", 3, 3, -1, 1, 35.0),
    Sketcher.Constraint("DistanceX", 4, 3, -1, 1, 25.0),
    Sketcher.Constraint("DistanceX", 5, 3, -1, 1, 15.0),
    Sketcher.Constraint("DistanceX", 6, 3, -1, 1, 5.0),
])
sketch5.setExpression("Constraints[54]", "Params.sketch5_diameter")
pocket4 = doc.addObject("PartDesign::Pocket", "Pocket003")
body.addObject(pocket4)
pocket4.Profile = sketch5
pocket4.setExpression("Length", "Params.pocket4_length")

sketch6 = doc.addObject("Sketcher::SketchObject", "Sketch005")
body.addObject(sketch6)
sketch6.AttachmentSupport = (doc.XY_Plane, [""])
sketch6.MapMode = "FlatFace"
sketch6.AttachmentOffset = App.Placement(App.Vector(0, 0, 5), App.Rotation())
sketch6.addGeometry([
    Part.Circle(App.Vector(-65, 0, 0), App.Vector(0, 0, 1), 2.5),
    Part.Circle(App.Vector(-65, 15, 0), App.Vector(0, 0, 1), 2.5),
    Part.Circle(App.Vector(-65, -15, 0), App.Vector(0, 0, 1), 2.5),
    Part.Circle(App.Vector(65, -15, 0), App.Vector(0, 0, 1), 2.5),
    Part.Circle(App.Vector(65, 0, 0), App.Vector(0, 0, 1), 2.5),
    Part.Circle(App.Vector(65, 15, 0), App.Vector(0, 0, 1), 2.5),
], False)
sketch6.addConstraint([
    Sketcher.Constraint("Equal", 0, 1),
    Sketcher.Constraint("Equal", 1, 2),
    Sketcher.Constraint("Equal", 2, 3),
    Sketcher.Constraint("Equal", 3, 4),
    Sketcher.Constraint("Equal", 4, 5),
    Sketcher.Constraint("Symmetric", 1, 3, 3, 3, -1, 1),
    Sketcher.Constraint("Symmetric", 0, 3, 4, 3, -1, 1),
    Sketcher.Constraint("Symmetric", 2, 3, 5, 3, -1, 1),
    Sketcher.Constraint("Symmetric", 2, 3, 3, 3, -2),
    Sketcher.Constraint("PointOnObject", 0, 3, -1),
    Sketcher.Constraint("Vertical", 0, 3, 1, 3),
    Sketcher.Constraint("Diameter", 0, 5.0),
    Sketcher.Constraint("DistanceX", 0, 3, -1, 1, 65.0),
    Sketcher.Constraint("DistanceY", -1, 1, 1, 3, 15.0),
])
sketch6.setExpression("Constraints[11]", "Params.sketch6_diameter")
pocket5 = doc.addObject("PartDesign::Pocket", "Pocket004")
body.addObject(pocket5)
pocket5.Profile = sketch6
pocket5.setExpression("Length", "Params.pocket5_length")

sketch7 = doc.addObject("Sketcher::SketchObject", "Sketch006")
body.addObject(sketch7)
sketch7.AttachmentSupport = (doc.XY_Plane, [""])
sketch7.MapMode = "FlatFace"
sketch7.addGeometry([
    Part.Circle(App.Vector(-100, 0, 0), App.Vector(0, 0, 1), 9),
    Part.Circle(App.Vector(-40, 120, 0), App.Vector(0, 0, 1), 9),
    Part.Circle(App.Vector(-40, -120, 0), App.Vector(0, 0, 1), 9),
    Part.Circle(App.Vector(40, -120, 0), App.Vector(0, 0, 1), 9),
    Part.Circle(App.Vector(100, 0, 0), App.Vector(0, 0, 1), 9),
    Part.Circle(App.Vector(40, 120, 0), App.Vector(0, 0, 1), 9),
], False)
sketch7.addConstraint([
    Sketcher.Constraint("Equal", 0, 1),
    Sketcher.Constraint("Equal", 1, 2),
    Sketcher.Constraint("Equal", 2, 3),
    Sketcher.Constraint("Equal", 3, 4),
    Sketcher.Constraint("Equal", 4, 5),
    Sketcher.Constraint("Symmetric", 1, 3, 3, 3, -1, 1),
    Sketcher.Constraint("Symmetric", 0, 3, 4, 3, -1, 1),
    Sketcher.Constraint("Symmetric", 2, 3, 5, 3, -1, 1),
    Sketcher.Constraint("Symmetric", 2, 3, 3, 3, -2),
    Sketcher.Constraint("PointOnObject", 0, 3, -1),
    Sketcher.Constraint("Diameter", 0, 17.5),
    Sketcher.Constraint("DistanceX", 0, 3, -1, 1, 100.0),
    Sketcher.Constraint("DistanceX", 1, 3, -1, 1, 40.0),
    Sketcher.Constraint("DistanceY", -1, 1, 1, 3, 120.0),
])
sketch7.setExpression("Constraints[10]", "Params.sketch7_diameter")
pocket6 = doc.addObject("PartDesign::Pocket", "Pocket005")
body.addObject(pocket6)
pocket6.Profile = sketch7
pocket6.setExpression("Length", "Params.pocket6_length")
pocket6.Reversed = True

doc.recompute()
